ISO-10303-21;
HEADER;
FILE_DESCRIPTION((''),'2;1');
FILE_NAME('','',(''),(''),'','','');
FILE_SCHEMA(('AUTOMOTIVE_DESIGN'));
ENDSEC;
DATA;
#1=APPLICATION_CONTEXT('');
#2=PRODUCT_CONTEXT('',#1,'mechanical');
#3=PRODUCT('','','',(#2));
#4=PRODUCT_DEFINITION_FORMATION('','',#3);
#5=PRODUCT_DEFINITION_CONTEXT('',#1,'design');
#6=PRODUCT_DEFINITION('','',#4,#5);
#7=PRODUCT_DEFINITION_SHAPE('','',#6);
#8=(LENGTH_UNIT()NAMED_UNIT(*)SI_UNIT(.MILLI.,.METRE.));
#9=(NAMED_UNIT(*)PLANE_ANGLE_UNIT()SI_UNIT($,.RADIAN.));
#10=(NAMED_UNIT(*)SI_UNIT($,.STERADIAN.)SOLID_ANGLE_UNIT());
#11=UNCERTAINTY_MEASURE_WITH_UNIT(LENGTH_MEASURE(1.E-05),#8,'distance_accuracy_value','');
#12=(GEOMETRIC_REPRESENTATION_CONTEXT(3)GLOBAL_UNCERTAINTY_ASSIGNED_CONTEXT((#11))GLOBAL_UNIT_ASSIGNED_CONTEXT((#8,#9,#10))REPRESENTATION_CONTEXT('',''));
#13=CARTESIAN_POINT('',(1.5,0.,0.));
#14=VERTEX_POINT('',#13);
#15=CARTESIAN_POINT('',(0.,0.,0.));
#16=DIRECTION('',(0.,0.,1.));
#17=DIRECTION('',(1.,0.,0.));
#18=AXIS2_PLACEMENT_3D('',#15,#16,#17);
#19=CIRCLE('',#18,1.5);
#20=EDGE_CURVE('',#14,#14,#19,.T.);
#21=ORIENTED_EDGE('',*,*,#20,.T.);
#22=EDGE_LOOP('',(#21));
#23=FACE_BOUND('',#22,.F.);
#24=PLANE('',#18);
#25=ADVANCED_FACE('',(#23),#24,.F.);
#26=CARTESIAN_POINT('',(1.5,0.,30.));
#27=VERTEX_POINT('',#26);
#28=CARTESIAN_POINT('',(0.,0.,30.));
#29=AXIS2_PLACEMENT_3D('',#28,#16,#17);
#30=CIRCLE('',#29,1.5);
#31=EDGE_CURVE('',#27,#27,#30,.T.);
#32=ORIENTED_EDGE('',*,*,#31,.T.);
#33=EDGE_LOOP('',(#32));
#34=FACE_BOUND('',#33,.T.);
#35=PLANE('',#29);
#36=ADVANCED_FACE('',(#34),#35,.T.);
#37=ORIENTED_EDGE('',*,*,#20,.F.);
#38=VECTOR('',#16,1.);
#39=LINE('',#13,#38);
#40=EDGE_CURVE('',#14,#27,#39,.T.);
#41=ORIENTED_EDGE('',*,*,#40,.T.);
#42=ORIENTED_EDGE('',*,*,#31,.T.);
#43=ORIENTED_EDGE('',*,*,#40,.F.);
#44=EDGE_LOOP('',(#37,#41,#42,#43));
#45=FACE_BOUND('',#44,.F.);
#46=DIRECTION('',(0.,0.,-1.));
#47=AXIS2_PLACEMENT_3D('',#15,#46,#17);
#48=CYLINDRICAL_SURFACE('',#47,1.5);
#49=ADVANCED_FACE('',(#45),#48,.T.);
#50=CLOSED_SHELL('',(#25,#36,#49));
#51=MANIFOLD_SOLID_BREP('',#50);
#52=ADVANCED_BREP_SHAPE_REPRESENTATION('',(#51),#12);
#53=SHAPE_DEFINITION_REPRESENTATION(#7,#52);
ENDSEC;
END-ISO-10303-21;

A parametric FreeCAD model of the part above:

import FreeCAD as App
import Part
import Sketcher

V = App.Vector
Q = App.Units.Quantity

doc = App.newDocument("Part")
params = doc.addObject("Spreadsheet::Sheet", "Params")
for row, (alias, value) in enumerate([
    ("sketch1_diameter", "3 mm"),
    ("pad1_length", "30 mm"),
], start=1):
    params.set(f"A{row}", alias)
    params.set(f"B{row}", "=" + value)
    params.setAlias(f"B{row}", alias)

body = doc.addObject("PartDesign::Body", "Body")

# Sketch on XY plane
sketch1 = doc.addObject("Sketcher::SketchObject", "Sketch")
body.addObject(sketch1)
sketch1.AttachmentSupport = (doc.XY_Plane, [""])
sketch1.MapMode = "FlatFace"
sketch1.addGeometry(Part.Circle(V(0, 0, 0), V(0, 0, 1), 1.5), False)
sketch1.addConstraint([
    Sketcher.Constraint("Coincident", 0, 3, -1, 1),
    Sketcher.Constraint("Diameter", 0, Q("3 mm")),
])
sketch1.setExpression("Constraints[1]", "Params.sketch1_diameter")
pad1 = doc.addObject("PartDesign::Pad", "Pad")
body.addObject(pad1)
pad1.Profile = sketch1
pad1.setExpression("Length", "Params.pad1_length")

doc.recompute()
